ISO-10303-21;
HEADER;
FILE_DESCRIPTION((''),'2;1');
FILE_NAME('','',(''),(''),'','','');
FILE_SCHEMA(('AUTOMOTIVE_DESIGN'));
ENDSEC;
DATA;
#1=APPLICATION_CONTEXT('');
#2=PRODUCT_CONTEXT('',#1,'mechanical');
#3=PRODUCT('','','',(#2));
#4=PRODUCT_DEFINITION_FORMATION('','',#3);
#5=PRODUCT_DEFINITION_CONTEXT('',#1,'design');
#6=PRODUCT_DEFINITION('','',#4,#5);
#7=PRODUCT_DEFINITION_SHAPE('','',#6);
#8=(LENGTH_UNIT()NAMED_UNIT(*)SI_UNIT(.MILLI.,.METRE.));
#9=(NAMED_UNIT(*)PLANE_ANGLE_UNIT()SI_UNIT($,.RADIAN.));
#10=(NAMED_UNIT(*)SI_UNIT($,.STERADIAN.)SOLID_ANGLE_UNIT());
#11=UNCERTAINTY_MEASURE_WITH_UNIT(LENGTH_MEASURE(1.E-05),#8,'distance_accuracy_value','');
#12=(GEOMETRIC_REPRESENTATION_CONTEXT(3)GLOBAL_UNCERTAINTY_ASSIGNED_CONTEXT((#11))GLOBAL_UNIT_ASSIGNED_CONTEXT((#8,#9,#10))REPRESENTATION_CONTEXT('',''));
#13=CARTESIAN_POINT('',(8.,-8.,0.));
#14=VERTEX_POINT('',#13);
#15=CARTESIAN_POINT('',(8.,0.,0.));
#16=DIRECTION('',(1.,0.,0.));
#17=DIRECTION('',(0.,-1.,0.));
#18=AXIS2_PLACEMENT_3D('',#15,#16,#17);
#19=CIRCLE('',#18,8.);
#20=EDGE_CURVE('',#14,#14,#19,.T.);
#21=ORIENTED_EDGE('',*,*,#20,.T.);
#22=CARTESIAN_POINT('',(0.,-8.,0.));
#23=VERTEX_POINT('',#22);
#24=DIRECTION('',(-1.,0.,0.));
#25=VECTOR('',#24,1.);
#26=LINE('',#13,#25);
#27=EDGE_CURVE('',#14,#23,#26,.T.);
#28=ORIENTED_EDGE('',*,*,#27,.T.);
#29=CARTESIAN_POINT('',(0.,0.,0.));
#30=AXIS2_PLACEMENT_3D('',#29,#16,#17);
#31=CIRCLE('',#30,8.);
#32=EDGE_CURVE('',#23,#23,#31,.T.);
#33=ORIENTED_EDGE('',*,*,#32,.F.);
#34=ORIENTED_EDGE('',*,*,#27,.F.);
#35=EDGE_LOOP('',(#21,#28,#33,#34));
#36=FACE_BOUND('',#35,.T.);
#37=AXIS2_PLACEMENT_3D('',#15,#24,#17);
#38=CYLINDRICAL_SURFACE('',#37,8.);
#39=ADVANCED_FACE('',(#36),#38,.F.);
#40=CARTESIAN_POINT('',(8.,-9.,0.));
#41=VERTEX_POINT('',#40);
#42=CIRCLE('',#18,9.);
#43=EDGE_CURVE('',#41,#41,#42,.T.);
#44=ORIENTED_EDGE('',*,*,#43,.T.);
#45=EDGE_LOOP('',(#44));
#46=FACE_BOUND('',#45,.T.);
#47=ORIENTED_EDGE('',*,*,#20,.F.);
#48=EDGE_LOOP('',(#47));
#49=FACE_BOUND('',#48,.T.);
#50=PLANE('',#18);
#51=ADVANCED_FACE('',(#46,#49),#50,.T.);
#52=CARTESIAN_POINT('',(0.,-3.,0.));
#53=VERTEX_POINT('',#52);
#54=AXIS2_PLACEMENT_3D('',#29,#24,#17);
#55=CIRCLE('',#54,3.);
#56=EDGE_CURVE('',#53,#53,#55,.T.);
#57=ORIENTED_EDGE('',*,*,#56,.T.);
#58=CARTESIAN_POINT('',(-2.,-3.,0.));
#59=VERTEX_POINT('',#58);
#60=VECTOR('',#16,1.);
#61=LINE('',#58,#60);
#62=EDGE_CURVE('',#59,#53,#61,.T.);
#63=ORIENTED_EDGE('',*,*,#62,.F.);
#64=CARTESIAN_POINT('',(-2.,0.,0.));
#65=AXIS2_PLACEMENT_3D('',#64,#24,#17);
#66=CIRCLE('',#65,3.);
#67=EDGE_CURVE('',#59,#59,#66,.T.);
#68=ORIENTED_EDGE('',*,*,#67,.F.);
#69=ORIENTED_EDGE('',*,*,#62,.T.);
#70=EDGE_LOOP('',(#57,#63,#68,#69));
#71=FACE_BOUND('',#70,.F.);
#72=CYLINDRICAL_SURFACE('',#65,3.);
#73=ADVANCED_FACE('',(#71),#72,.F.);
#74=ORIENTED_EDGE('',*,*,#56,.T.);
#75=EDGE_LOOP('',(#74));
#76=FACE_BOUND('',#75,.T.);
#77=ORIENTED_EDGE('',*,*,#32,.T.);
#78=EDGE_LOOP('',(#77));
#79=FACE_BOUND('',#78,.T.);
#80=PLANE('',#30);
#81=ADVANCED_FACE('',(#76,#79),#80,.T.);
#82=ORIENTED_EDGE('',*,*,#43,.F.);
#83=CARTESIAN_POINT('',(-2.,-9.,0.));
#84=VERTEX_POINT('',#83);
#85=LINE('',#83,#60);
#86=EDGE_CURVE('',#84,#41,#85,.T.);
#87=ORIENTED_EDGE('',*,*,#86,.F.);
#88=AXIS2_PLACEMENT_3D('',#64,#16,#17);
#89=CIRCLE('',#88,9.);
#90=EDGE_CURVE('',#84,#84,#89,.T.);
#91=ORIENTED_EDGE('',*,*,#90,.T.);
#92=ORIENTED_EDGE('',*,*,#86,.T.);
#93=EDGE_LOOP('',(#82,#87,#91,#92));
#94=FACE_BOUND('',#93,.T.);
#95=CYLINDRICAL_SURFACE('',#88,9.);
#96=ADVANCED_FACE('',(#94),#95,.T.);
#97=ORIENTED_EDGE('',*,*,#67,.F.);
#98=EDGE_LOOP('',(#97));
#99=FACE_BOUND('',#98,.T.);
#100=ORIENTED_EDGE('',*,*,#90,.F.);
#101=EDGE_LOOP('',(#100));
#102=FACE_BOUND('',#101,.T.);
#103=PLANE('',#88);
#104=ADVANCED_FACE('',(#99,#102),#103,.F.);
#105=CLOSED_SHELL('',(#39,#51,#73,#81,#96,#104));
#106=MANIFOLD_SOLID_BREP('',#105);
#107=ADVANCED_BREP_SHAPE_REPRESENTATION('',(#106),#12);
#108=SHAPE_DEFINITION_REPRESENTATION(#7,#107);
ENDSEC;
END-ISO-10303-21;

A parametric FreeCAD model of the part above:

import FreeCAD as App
import Part
import Sketcher

V = App.Vector
Q = App.Units.Quantity


def add_polygon(sketch, points):
    """Adds a closed chain of lines whose ends are joined by coincident constraints."""
    first, n = sketch.GeometryCount, len(points)
    for a, b in zip(points, points[1:] + points[:1]):
        sketch.addGeometry(Part.LineSegment(App.Vector(*a, 0), App.Vector(*b, 0)), False)
    for i in range(n):
        sketch.addConstraint(Sketcher.Constraint("Coincident", first + i, 2, first + (i + 1) % n, 1))

doc = App.newDocument("Part")
params = doc.addObject("Spreadsheet::Sheet", "Params")
for row, (alias, value) in enumerate([
    ("sketch1_width", "2 mm"),
    ("sketch1_width2", "10 mm"),
    ("sketch1_height", "9 mm"),
    ("revolution_angle", "360 deg"),
    ("sketch2_diameter", "6 mm"),
], start=1):
    params.set(f"A{row}", alias)
    params.set(f"B{row}", "=" + value)
    params.setAlias(f"B{row}", alias)

body = doc.addObject("PartDesign::Body", "Body")

# Sketch on XY plane
sketch1 = body.newObject("Sketcher::SketchObject", "Sketch")
sketch1.AttachmentSupport = (doc.getObject("XY_Plane"), [""])
sketch1.MapMode = "FlatFace"
add_polygon(sketch1, [(0, -8), (0, 0), (-2, 0), (-2, -9), (8, -9), (8, -8)])  # lines 0-5
sketch1.addConstraint([
    Sketcher.Constraint("Vertical", 0),
    Sketcher.Constraint("Horizontal", 1),
    Sketcher.Constraint("Vertical", 2),
    Sketcher.Constraint("Horizontal", 3),
    Sketcher.Constraint("Vertical", 4),
    Sketcher.Constraint("Horizontal", 5),
    Sketcher.Constraint("Coincident", 0, 2, -1, 1),
    Sketcher.Constraint("Equal", 5, 0),
    Sketcher.Constraint("DistanceX", 1, 2, 1, 1, Q("2 mm")),
    Sketcher.Constraint("DistanceX", 3, 1, 3, 2, Q("10 mm")),
    Sketcher.Constraint("DistanceY", 2, 2, 2, 1, Q("9 mm")),
])
sketch1.setExpression("Constraints[14]", "Params.sketch1_width")
sketch1.setExpression("Constraints[15]", "Params.sketch1_width2")
sketch1.setExpression("Constraints[16]", "Params.sketch1_height")
revolution = body.newObject("PartDesign::Revolution", "Revolution")
revolution.Profile = sketch1
revolution.ReferenceAxis = (sketch1, ["H_Axis"])
revolution.setExpression("Angle", "Params.revolution_angle")

# Sketch on YZ plane
sketch2 = body.newObject("Sketcher::SketchObject", "Sketch001")
sketch2.AttachmentSupport = (doc.getObject("YZ_Plane"), [""])
sketch2.MapMode = "FlatFace"
sketch2.AttachmentOffset = App.Placement(V(0, 0, -2), App.Rotation())
sketch2.addGeometry(Part.Circle(V(0, 0, 0), V(0, 0, 1), 3), False)
sketch2.addConstraint([
    Sketcher.Constraint("Coincident", 0, 3, -1, 1),
    Sketcher.Constraint("Diameter", 0, Q("6 mm")),
])
sketch2.setExpression("Constraints[1]", "Params.sketch2_diameter")
pocket1 = body.newObject("PartDesign::Pocket", "Pocket")
pocket1.Profile = sketch2
pocket1.Type = "ThroughAll"
pocket1.Reversed = True

doc.recompute()
